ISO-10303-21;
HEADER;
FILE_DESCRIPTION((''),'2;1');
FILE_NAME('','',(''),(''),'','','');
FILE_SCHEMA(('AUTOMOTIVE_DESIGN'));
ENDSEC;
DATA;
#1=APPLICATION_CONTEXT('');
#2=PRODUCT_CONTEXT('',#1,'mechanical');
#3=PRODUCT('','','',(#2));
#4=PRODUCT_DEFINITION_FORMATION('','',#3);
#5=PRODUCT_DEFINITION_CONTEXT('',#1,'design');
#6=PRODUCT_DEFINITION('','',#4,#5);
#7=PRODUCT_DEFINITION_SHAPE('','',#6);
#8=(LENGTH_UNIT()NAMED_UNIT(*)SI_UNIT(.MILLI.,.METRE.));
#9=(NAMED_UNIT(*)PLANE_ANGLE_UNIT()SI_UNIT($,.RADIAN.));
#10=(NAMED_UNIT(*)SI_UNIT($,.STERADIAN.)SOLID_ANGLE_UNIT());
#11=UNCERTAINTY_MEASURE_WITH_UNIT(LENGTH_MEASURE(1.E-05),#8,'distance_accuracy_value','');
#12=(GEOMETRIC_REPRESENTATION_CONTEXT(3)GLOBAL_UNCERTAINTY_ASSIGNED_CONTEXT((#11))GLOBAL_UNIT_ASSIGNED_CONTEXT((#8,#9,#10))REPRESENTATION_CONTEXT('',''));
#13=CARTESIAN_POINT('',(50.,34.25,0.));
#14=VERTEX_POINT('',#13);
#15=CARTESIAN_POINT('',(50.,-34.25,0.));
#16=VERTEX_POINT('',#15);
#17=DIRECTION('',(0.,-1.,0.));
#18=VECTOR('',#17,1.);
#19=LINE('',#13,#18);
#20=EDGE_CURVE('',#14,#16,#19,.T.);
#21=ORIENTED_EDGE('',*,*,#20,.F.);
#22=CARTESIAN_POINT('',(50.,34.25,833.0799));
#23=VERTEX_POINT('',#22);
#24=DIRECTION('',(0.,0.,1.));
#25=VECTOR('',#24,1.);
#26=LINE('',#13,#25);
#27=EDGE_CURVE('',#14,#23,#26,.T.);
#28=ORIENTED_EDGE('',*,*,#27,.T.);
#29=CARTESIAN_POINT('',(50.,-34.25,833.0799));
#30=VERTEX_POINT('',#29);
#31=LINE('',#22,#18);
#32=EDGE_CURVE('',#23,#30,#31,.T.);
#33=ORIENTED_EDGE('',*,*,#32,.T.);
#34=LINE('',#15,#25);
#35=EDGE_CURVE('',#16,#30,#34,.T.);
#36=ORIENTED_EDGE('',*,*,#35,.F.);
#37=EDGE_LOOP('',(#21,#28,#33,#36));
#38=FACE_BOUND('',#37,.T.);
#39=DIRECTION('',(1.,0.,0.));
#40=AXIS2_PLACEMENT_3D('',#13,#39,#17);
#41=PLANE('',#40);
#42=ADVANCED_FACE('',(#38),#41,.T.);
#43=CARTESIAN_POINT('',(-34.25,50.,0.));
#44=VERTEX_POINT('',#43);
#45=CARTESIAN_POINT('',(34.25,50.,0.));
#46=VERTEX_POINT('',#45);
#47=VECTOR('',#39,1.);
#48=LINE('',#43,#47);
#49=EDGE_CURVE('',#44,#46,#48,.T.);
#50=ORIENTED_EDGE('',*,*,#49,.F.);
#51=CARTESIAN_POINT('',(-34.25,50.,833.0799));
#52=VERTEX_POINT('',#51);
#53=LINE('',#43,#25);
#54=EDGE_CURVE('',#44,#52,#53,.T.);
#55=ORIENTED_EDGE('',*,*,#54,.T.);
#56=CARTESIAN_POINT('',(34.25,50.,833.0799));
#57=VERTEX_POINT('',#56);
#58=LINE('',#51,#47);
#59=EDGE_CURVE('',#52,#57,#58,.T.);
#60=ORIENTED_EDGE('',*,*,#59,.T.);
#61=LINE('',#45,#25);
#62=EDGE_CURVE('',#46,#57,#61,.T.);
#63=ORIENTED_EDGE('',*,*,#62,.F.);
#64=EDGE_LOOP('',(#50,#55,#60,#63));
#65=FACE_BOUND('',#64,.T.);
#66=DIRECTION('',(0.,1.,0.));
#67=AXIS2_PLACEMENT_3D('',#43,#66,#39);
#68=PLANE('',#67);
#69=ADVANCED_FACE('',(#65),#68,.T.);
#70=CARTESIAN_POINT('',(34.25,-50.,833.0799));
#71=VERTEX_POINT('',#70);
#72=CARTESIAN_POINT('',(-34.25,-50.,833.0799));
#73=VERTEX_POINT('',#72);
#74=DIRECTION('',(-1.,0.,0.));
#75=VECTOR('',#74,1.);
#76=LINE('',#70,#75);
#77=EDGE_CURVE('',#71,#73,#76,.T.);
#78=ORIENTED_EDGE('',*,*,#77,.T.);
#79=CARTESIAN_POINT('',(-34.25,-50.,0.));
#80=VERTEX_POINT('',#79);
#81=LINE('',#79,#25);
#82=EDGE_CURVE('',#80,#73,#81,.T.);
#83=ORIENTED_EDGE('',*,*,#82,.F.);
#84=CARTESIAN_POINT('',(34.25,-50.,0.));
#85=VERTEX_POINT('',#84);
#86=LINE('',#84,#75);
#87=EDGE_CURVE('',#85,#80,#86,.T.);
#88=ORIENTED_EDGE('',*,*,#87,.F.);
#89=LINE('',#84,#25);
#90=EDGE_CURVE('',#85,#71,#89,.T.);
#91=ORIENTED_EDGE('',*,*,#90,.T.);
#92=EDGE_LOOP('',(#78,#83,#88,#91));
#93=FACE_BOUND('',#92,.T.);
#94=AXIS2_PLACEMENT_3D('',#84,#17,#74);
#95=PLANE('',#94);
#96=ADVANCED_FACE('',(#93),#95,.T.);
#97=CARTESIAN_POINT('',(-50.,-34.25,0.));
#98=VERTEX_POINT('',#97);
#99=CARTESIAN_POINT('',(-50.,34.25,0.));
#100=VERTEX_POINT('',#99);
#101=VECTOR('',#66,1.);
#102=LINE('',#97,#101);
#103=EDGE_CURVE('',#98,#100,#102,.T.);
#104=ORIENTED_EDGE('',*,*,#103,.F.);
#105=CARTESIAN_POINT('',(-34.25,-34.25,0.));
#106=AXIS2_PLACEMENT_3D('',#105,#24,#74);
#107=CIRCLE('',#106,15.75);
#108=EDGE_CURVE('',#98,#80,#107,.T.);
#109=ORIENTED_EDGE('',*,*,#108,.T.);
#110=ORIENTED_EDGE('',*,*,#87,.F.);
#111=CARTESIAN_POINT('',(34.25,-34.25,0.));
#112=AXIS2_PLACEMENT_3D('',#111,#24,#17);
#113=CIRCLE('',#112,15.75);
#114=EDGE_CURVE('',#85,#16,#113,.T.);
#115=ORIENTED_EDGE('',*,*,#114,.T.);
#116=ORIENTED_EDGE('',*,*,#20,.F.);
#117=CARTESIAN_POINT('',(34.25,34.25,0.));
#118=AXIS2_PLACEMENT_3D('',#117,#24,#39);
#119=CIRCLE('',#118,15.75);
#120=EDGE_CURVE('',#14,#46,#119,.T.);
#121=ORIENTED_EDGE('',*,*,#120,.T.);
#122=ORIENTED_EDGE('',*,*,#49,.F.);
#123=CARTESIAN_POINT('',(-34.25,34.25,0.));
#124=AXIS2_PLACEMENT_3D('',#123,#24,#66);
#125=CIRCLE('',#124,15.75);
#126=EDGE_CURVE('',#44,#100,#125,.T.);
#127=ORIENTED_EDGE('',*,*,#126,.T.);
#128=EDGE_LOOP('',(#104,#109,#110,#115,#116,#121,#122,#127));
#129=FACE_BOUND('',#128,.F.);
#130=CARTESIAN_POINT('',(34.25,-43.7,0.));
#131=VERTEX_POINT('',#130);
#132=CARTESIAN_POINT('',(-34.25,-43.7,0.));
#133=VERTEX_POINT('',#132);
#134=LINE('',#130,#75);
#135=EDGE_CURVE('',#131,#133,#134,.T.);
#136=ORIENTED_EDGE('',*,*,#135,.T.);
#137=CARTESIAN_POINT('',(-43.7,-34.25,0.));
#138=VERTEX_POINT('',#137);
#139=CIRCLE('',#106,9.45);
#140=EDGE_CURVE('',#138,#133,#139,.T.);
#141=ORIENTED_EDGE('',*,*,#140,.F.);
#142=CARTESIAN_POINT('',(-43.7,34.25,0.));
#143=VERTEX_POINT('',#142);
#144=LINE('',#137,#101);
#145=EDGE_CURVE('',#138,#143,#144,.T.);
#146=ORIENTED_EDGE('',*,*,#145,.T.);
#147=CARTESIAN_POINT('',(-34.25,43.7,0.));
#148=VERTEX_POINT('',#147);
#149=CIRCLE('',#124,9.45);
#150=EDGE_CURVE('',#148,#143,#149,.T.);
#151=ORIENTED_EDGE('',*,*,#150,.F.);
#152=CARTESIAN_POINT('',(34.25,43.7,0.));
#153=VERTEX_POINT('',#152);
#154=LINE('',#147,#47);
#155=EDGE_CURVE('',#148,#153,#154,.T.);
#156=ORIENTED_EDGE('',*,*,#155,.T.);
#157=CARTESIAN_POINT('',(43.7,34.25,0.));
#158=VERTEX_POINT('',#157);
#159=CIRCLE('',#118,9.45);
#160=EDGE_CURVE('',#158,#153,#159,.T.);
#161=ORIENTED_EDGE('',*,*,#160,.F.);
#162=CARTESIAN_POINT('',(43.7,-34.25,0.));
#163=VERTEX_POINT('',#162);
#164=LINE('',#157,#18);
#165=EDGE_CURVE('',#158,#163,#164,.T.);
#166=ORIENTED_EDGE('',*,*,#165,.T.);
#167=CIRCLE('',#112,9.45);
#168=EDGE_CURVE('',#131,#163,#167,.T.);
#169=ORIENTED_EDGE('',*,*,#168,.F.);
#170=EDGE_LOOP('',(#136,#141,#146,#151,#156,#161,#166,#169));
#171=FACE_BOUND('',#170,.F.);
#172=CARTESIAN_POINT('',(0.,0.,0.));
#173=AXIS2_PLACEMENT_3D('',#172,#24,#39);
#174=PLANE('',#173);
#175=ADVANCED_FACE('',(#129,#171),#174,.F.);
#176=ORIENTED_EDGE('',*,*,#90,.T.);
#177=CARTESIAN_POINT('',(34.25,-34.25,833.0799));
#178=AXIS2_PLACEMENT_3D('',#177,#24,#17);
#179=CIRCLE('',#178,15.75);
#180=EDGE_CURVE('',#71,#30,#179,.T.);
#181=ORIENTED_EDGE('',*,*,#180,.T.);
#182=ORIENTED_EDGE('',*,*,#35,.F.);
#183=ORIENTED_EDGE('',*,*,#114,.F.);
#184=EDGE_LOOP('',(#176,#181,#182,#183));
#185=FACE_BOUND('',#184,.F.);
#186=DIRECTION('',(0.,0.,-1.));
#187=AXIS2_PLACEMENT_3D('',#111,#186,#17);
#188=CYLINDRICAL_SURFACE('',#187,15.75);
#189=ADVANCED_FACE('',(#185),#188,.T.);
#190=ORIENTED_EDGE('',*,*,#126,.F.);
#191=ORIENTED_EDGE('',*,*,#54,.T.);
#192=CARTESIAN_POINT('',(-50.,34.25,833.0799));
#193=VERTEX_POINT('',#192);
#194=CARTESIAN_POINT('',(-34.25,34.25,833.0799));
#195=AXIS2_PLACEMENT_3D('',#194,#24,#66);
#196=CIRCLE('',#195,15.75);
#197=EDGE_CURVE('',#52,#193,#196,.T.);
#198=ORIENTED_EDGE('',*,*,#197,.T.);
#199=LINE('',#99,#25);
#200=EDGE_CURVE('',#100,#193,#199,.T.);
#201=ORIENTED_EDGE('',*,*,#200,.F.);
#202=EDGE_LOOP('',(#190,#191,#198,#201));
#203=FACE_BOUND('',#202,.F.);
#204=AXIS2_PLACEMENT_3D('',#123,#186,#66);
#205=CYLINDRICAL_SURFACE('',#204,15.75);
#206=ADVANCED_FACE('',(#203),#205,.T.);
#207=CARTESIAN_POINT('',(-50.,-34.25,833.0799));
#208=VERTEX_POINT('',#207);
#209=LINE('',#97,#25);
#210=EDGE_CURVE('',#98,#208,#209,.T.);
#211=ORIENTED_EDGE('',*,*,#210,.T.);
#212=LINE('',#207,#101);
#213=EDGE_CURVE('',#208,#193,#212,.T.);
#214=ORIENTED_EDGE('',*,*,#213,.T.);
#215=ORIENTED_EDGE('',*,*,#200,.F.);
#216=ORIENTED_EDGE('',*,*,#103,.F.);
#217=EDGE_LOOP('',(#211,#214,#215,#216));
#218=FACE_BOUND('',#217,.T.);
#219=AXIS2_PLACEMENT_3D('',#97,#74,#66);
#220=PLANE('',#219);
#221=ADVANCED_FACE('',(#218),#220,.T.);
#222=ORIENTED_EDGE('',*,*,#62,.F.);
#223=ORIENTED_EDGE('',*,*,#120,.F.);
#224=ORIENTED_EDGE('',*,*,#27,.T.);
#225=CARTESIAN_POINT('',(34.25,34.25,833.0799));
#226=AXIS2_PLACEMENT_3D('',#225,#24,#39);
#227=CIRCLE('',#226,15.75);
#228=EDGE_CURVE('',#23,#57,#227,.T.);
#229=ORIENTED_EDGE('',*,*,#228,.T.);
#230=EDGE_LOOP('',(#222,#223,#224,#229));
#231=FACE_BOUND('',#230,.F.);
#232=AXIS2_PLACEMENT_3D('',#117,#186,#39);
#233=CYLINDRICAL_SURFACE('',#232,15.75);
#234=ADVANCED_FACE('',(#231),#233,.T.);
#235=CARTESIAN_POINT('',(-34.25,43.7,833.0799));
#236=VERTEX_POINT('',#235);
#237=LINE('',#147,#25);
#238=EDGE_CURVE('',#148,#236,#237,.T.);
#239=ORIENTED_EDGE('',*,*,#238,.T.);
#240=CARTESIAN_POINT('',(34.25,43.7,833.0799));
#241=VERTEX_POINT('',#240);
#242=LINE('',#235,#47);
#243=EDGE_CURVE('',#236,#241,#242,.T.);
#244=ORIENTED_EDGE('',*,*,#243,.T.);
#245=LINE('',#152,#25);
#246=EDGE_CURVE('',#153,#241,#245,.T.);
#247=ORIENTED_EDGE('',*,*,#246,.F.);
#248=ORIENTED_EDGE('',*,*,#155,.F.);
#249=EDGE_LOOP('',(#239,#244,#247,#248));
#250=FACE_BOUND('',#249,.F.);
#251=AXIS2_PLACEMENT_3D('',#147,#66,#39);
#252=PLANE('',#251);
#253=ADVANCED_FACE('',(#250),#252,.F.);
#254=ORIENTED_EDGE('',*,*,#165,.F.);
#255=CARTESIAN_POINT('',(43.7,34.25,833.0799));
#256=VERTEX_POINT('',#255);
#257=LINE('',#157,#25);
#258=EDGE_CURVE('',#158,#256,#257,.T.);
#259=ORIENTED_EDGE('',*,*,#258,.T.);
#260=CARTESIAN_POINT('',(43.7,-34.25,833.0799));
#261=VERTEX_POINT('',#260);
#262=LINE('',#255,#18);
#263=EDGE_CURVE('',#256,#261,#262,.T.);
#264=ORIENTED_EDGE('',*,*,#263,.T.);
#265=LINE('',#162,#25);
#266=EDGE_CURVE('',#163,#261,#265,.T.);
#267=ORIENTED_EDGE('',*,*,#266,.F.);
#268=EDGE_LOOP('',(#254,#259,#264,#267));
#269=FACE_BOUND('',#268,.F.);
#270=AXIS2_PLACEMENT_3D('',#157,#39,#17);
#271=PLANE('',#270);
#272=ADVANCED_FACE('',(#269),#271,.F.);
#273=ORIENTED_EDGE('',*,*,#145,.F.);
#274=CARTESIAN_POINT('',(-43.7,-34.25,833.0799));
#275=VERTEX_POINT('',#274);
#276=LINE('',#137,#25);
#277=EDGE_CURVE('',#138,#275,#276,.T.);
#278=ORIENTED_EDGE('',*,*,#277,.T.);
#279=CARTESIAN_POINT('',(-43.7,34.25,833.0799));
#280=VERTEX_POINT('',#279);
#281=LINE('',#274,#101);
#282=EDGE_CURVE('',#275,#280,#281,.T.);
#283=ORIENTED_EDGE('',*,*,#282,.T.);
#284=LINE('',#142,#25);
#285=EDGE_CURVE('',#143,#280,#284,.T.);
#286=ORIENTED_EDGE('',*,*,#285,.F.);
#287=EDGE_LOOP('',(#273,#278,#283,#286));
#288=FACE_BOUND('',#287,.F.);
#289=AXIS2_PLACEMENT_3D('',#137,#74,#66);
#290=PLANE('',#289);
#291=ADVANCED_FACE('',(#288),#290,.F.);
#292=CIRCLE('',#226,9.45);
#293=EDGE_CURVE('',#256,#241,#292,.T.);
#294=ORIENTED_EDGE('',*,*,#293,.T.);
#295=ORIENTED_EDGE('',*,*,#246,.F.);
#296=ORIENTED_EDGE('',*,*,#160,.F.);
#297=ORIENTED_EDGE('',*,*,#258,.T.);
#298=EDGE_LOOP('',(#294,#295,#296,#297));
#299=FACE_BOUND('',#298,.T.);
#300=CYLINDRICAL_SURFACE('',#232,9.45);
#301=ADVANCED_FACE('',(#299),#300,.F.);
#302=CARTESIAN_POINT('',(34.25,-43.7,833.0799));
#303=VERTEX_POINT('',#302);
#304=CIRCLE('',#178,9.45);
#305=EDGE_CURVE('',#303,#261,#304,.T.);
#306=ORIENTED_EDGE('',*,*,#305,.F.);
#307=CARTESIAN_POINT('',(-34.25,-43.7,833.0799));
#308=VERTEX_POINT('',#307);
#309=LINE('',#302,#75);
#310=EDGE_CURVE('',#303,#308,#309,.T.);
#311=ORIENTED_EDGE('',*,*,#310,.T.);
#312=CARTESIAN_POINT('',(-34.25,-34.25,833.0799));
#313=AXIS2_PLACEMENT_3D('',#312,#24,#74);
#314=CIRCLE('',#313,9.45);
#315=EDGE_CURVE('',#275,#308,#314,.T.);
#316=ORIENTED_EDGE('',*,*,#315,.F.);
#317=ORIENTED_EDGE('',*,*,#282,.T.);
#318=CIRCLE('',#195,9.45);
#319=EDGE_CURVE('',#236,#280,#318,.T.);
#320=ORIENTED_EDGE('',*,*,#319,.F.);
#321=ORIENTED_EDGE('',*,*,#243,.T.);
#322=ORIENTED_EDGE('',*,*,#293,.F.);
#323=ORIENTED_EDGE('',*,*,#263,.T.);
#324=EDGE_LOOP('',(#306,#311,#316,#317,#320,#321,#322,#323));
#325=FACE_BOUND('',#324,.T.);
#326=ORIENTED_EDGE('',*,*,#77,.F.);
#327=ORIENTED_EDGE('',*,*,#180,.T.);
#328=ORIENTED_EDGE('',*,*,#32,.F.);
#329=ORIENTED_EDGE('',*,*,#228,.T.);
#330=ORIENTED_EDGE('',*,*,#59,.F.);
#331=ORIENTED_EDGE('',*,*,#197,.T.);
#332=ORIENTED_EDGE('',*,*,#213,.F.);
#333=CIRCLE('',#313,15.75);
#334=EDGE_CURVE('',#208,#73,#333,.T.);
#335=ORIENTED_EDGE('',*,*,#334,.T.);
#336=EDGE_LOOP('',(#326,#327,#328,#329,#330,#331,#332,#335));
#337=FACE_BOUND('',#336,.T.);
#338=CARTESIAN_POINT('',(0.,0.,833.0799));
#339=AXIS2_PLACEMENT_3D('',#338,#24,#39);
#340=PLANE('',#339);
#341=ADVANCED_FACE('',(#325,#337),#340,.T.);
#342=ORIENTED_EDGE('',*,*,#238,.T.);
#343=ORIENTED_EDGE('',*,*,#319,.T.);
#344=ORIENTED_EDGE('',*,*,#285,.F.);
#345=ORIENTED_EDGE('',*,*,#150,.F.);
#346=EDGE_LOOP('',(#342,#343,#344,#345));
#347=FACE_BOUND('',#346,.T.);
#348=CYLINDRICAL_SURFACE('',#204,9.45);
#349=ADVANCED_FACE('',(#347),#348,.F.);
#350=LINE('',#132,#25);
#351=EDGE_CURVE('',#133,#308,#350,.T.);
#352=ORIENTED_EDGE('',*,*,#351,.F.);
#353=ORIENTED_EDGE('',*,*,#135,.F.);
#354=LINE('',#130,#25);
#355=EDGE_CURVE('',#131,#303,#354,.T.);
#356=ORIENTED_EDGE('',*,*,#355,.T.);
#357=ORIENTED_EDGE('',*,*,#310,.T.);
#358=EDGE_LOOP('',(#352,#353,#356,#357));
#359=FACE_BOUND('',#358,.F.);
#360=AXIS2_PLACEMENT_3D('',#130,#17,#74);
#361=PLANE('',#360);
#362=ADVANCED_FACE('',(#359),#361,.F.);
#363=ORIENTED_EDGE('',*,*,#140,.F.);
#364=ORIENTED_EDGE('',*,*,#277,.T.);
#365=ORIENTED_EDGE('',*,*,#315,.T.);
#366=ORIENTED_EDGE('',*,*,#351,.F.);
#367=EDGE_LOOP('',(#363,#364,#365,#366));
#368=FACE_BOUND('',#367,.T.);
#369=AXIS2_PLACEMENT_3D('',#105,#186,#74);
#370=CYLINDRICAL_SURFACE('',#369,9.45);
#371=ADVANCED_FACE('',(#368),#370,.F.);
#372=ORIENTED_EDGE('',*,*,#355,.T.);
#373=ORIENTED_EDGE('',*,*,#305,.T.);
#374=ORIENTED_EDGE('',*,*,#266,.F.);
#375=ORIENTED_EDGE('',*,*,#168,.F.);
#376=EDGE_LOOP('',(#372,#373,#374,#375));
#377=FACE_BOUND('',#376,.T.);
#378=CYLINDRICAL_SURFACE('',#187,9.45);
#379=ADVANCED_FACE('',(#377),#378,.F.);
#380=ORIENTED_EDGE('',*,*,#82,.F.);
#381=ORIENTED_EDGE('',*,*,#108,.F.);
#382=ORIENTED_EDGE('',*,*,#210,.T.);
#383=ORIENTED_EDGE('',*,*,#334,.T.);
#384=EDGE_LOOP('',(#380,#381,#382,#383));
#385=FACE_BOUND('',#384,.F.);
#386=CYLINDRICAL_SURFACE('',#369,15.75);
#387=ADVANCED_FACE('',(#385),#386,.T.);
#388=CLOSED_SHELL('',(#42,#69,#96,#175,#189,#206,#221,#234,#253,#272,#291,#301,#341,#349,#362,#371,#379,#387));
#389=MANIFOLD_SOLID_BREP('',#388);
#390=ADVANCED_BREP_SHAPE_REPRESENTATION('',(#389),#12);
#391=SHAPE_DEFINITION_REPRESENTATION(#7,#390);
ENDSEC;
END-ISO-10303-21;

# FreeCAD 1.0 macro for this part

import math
import FreeCAD as App
import Part
import Sketcher

V = App.Vector
Q = App.Units.Quantity

doc = App.newDocument("Part")
body = doc.addObject("PartDesign::Body", "Body")

# Sketch on XY plane
sketch1 = body.newObject("Sketcher::SketchObject", "Sketch")
sketch1.AttachmentSupport = (doc.getObject("XY_Plane"), [""])
sketch1.MapMode = "FlatFace"
sketch1.addGeometry([
    Part.LineSegment(V(-50, 34, 0), V(-50, -34, 0)),  # 0
    Part.ArcOfCircle(Part.Circle(V(-34, -34, 0), V(0, 0, 1), 16), math.radians(180), math.radians(270)),  # 1
    Part.LineSegment(V(-34, -50, 0), V(34, -50, 0)),  # 2
    Part.ArcOfCircle(Part.Circle(V(34, -34, 0), V(0, 0, 1), 16), math.radians(-90), math.radians(0)),  # 3
    Part.LineSegment(V(50, -34, 0), V(50, 34, 0)),  # 4
    Part.ArcOfCircle(Part.Circle(V(34, 34, 0), V(0, 0, 1), 16), math.radians(0), math.radians(90)),  # 5
    Part.LineSegment(V(34, 50, 0), V(-34, 50, 0)),  # 6
    Part.ArcOfCircle(Part.Circle(V(-34, 34, 0), V(0, 0, 1), 16), math.radians(90), math.radians(180)),  # 7
    Part.ArcOfCircle(Part.Circle(V(-34, 34, 0), V(0, 0, 1), 9), math.radians(90), math.radians(180)),  # 8
    Part.LineSegment(V(-34, 44, 0), V(34, 44, 0)),  # 9
    Part.ArcOfCircle(Part.Circle(V(34, 34, 0), V(0, 0, 1), 9), math.radians(0), math.radians(90)),  # 10
    Part.LineSegment(V(44, 34, 0), V(44, -34, 0)),  # 11
    Part.ArcOfCircle(Part.Circle(V(34, -34, 0), V(0, 0, 1), 9), math.radians(-90), math.radians(0)),  # 12
    Part.LineSegment(V(34, -44, 0), V(-34, -44, 0)),  # 13
    Part.ArcOfCircle(Part.Circle(V(-34, -34, 0), V(0, 0, 1), 9), math.radians(180), math.radians(270)),  # 14
    Part.LineSegment(V(-44, -34, 0), V(-44, 34, 0)),  # 15
], False)
sketch1.addConstraint([
    Sketcher.Constraint("Tangent", 0, 2, 1, 1),
    Sketcher.Constraint("Tangent", 1, 2, 2, 1),
    Sketcher.Constraint("Tangent", 2, 2, 3, 1),
    Sketcher.Constraint("Tangent", 3, 2, 4, 1),
    Sketcher.Constraint("Tangent", 4, 2, 5, 1),
    Sketcher.Constraint("Tangent", 5, 2, 6, 1),
    Sketcher.Constraint("Tangent", 6, 2, 7, 1),
    Sketcher.Constraint("Tangent", 7, 2, 0, 1),
    Sketcher.Constraint("Tangent", 8, 1, 9, 1),
    Sketcher.Constraint("Tangent", 9, 2, 10, 2),
    Sketcher.Constraint("Tangent", 10, 1, 11, 1),
    Sketcher.Constraint("Tangent", 11, 2, 12, 2),
    Sketcher.Constraint("Tangent", 12, 1, 13, 1),
    Sketcher.Constraint("Tangent", 13, 2, 14, 2),
    Sketcher.Constraint("Tangent", 14, 1, 15, 1),
    Sketcher.Constraint("Tangent", 15, 2, 8, 2),
    Sketcher.Constraint("Vertical", 0),
    Sketcher.Constraint("Horizontal", 2),
    Sketcher.Constraint("Vertical", 4),
    Sketcher.Constraint("Horizontal", 6),
    Sketcher.Constraint("Horizontal", 9),
    Sketcher.Constraint("Vertical", 11),
    Sketcher.Constraint("Horizontal", 13),
    Sketcher.Constraint("Vertical", 15),
    Sketcher.Constraint("Coincident", 8, 3, 7, 3),
    Sketcher.Constraint("Coincident", 10, 3, 5, 3),
    Sketcher.Constraint("Coincident", 12, 3, 3, 3),
    Sketcher.Constraint("Equal", 1, 3),
    Sketcher.Constraint("Equal", 3, 5),
    Sketcher.Constraint("Equal", 5, 7),
    Sketcher.Constraint("Equal", 12, 14),
    Sketcher.Constraint("Symmetric", 1, 3, 5, 3, -1, 1),
    Sketcher.Constraint("Equal", 13, 0),
    Sketcher.Constraint("Radius", 1, Q("15.75 mm")),
    Sketcher.Constraint("DistanceX", 0, 2, -1, 1, Q("50 mm")),
    Sketcher.Constraint("DistanceY", 8, 1, 6, 2, Q("6.3 mm")),
])
pad1 = body.newObject("PartDesign::Pad", "Pad")
pad1.Profile = sketch1
pad1.Length = 833.0799

doc.recompute()
